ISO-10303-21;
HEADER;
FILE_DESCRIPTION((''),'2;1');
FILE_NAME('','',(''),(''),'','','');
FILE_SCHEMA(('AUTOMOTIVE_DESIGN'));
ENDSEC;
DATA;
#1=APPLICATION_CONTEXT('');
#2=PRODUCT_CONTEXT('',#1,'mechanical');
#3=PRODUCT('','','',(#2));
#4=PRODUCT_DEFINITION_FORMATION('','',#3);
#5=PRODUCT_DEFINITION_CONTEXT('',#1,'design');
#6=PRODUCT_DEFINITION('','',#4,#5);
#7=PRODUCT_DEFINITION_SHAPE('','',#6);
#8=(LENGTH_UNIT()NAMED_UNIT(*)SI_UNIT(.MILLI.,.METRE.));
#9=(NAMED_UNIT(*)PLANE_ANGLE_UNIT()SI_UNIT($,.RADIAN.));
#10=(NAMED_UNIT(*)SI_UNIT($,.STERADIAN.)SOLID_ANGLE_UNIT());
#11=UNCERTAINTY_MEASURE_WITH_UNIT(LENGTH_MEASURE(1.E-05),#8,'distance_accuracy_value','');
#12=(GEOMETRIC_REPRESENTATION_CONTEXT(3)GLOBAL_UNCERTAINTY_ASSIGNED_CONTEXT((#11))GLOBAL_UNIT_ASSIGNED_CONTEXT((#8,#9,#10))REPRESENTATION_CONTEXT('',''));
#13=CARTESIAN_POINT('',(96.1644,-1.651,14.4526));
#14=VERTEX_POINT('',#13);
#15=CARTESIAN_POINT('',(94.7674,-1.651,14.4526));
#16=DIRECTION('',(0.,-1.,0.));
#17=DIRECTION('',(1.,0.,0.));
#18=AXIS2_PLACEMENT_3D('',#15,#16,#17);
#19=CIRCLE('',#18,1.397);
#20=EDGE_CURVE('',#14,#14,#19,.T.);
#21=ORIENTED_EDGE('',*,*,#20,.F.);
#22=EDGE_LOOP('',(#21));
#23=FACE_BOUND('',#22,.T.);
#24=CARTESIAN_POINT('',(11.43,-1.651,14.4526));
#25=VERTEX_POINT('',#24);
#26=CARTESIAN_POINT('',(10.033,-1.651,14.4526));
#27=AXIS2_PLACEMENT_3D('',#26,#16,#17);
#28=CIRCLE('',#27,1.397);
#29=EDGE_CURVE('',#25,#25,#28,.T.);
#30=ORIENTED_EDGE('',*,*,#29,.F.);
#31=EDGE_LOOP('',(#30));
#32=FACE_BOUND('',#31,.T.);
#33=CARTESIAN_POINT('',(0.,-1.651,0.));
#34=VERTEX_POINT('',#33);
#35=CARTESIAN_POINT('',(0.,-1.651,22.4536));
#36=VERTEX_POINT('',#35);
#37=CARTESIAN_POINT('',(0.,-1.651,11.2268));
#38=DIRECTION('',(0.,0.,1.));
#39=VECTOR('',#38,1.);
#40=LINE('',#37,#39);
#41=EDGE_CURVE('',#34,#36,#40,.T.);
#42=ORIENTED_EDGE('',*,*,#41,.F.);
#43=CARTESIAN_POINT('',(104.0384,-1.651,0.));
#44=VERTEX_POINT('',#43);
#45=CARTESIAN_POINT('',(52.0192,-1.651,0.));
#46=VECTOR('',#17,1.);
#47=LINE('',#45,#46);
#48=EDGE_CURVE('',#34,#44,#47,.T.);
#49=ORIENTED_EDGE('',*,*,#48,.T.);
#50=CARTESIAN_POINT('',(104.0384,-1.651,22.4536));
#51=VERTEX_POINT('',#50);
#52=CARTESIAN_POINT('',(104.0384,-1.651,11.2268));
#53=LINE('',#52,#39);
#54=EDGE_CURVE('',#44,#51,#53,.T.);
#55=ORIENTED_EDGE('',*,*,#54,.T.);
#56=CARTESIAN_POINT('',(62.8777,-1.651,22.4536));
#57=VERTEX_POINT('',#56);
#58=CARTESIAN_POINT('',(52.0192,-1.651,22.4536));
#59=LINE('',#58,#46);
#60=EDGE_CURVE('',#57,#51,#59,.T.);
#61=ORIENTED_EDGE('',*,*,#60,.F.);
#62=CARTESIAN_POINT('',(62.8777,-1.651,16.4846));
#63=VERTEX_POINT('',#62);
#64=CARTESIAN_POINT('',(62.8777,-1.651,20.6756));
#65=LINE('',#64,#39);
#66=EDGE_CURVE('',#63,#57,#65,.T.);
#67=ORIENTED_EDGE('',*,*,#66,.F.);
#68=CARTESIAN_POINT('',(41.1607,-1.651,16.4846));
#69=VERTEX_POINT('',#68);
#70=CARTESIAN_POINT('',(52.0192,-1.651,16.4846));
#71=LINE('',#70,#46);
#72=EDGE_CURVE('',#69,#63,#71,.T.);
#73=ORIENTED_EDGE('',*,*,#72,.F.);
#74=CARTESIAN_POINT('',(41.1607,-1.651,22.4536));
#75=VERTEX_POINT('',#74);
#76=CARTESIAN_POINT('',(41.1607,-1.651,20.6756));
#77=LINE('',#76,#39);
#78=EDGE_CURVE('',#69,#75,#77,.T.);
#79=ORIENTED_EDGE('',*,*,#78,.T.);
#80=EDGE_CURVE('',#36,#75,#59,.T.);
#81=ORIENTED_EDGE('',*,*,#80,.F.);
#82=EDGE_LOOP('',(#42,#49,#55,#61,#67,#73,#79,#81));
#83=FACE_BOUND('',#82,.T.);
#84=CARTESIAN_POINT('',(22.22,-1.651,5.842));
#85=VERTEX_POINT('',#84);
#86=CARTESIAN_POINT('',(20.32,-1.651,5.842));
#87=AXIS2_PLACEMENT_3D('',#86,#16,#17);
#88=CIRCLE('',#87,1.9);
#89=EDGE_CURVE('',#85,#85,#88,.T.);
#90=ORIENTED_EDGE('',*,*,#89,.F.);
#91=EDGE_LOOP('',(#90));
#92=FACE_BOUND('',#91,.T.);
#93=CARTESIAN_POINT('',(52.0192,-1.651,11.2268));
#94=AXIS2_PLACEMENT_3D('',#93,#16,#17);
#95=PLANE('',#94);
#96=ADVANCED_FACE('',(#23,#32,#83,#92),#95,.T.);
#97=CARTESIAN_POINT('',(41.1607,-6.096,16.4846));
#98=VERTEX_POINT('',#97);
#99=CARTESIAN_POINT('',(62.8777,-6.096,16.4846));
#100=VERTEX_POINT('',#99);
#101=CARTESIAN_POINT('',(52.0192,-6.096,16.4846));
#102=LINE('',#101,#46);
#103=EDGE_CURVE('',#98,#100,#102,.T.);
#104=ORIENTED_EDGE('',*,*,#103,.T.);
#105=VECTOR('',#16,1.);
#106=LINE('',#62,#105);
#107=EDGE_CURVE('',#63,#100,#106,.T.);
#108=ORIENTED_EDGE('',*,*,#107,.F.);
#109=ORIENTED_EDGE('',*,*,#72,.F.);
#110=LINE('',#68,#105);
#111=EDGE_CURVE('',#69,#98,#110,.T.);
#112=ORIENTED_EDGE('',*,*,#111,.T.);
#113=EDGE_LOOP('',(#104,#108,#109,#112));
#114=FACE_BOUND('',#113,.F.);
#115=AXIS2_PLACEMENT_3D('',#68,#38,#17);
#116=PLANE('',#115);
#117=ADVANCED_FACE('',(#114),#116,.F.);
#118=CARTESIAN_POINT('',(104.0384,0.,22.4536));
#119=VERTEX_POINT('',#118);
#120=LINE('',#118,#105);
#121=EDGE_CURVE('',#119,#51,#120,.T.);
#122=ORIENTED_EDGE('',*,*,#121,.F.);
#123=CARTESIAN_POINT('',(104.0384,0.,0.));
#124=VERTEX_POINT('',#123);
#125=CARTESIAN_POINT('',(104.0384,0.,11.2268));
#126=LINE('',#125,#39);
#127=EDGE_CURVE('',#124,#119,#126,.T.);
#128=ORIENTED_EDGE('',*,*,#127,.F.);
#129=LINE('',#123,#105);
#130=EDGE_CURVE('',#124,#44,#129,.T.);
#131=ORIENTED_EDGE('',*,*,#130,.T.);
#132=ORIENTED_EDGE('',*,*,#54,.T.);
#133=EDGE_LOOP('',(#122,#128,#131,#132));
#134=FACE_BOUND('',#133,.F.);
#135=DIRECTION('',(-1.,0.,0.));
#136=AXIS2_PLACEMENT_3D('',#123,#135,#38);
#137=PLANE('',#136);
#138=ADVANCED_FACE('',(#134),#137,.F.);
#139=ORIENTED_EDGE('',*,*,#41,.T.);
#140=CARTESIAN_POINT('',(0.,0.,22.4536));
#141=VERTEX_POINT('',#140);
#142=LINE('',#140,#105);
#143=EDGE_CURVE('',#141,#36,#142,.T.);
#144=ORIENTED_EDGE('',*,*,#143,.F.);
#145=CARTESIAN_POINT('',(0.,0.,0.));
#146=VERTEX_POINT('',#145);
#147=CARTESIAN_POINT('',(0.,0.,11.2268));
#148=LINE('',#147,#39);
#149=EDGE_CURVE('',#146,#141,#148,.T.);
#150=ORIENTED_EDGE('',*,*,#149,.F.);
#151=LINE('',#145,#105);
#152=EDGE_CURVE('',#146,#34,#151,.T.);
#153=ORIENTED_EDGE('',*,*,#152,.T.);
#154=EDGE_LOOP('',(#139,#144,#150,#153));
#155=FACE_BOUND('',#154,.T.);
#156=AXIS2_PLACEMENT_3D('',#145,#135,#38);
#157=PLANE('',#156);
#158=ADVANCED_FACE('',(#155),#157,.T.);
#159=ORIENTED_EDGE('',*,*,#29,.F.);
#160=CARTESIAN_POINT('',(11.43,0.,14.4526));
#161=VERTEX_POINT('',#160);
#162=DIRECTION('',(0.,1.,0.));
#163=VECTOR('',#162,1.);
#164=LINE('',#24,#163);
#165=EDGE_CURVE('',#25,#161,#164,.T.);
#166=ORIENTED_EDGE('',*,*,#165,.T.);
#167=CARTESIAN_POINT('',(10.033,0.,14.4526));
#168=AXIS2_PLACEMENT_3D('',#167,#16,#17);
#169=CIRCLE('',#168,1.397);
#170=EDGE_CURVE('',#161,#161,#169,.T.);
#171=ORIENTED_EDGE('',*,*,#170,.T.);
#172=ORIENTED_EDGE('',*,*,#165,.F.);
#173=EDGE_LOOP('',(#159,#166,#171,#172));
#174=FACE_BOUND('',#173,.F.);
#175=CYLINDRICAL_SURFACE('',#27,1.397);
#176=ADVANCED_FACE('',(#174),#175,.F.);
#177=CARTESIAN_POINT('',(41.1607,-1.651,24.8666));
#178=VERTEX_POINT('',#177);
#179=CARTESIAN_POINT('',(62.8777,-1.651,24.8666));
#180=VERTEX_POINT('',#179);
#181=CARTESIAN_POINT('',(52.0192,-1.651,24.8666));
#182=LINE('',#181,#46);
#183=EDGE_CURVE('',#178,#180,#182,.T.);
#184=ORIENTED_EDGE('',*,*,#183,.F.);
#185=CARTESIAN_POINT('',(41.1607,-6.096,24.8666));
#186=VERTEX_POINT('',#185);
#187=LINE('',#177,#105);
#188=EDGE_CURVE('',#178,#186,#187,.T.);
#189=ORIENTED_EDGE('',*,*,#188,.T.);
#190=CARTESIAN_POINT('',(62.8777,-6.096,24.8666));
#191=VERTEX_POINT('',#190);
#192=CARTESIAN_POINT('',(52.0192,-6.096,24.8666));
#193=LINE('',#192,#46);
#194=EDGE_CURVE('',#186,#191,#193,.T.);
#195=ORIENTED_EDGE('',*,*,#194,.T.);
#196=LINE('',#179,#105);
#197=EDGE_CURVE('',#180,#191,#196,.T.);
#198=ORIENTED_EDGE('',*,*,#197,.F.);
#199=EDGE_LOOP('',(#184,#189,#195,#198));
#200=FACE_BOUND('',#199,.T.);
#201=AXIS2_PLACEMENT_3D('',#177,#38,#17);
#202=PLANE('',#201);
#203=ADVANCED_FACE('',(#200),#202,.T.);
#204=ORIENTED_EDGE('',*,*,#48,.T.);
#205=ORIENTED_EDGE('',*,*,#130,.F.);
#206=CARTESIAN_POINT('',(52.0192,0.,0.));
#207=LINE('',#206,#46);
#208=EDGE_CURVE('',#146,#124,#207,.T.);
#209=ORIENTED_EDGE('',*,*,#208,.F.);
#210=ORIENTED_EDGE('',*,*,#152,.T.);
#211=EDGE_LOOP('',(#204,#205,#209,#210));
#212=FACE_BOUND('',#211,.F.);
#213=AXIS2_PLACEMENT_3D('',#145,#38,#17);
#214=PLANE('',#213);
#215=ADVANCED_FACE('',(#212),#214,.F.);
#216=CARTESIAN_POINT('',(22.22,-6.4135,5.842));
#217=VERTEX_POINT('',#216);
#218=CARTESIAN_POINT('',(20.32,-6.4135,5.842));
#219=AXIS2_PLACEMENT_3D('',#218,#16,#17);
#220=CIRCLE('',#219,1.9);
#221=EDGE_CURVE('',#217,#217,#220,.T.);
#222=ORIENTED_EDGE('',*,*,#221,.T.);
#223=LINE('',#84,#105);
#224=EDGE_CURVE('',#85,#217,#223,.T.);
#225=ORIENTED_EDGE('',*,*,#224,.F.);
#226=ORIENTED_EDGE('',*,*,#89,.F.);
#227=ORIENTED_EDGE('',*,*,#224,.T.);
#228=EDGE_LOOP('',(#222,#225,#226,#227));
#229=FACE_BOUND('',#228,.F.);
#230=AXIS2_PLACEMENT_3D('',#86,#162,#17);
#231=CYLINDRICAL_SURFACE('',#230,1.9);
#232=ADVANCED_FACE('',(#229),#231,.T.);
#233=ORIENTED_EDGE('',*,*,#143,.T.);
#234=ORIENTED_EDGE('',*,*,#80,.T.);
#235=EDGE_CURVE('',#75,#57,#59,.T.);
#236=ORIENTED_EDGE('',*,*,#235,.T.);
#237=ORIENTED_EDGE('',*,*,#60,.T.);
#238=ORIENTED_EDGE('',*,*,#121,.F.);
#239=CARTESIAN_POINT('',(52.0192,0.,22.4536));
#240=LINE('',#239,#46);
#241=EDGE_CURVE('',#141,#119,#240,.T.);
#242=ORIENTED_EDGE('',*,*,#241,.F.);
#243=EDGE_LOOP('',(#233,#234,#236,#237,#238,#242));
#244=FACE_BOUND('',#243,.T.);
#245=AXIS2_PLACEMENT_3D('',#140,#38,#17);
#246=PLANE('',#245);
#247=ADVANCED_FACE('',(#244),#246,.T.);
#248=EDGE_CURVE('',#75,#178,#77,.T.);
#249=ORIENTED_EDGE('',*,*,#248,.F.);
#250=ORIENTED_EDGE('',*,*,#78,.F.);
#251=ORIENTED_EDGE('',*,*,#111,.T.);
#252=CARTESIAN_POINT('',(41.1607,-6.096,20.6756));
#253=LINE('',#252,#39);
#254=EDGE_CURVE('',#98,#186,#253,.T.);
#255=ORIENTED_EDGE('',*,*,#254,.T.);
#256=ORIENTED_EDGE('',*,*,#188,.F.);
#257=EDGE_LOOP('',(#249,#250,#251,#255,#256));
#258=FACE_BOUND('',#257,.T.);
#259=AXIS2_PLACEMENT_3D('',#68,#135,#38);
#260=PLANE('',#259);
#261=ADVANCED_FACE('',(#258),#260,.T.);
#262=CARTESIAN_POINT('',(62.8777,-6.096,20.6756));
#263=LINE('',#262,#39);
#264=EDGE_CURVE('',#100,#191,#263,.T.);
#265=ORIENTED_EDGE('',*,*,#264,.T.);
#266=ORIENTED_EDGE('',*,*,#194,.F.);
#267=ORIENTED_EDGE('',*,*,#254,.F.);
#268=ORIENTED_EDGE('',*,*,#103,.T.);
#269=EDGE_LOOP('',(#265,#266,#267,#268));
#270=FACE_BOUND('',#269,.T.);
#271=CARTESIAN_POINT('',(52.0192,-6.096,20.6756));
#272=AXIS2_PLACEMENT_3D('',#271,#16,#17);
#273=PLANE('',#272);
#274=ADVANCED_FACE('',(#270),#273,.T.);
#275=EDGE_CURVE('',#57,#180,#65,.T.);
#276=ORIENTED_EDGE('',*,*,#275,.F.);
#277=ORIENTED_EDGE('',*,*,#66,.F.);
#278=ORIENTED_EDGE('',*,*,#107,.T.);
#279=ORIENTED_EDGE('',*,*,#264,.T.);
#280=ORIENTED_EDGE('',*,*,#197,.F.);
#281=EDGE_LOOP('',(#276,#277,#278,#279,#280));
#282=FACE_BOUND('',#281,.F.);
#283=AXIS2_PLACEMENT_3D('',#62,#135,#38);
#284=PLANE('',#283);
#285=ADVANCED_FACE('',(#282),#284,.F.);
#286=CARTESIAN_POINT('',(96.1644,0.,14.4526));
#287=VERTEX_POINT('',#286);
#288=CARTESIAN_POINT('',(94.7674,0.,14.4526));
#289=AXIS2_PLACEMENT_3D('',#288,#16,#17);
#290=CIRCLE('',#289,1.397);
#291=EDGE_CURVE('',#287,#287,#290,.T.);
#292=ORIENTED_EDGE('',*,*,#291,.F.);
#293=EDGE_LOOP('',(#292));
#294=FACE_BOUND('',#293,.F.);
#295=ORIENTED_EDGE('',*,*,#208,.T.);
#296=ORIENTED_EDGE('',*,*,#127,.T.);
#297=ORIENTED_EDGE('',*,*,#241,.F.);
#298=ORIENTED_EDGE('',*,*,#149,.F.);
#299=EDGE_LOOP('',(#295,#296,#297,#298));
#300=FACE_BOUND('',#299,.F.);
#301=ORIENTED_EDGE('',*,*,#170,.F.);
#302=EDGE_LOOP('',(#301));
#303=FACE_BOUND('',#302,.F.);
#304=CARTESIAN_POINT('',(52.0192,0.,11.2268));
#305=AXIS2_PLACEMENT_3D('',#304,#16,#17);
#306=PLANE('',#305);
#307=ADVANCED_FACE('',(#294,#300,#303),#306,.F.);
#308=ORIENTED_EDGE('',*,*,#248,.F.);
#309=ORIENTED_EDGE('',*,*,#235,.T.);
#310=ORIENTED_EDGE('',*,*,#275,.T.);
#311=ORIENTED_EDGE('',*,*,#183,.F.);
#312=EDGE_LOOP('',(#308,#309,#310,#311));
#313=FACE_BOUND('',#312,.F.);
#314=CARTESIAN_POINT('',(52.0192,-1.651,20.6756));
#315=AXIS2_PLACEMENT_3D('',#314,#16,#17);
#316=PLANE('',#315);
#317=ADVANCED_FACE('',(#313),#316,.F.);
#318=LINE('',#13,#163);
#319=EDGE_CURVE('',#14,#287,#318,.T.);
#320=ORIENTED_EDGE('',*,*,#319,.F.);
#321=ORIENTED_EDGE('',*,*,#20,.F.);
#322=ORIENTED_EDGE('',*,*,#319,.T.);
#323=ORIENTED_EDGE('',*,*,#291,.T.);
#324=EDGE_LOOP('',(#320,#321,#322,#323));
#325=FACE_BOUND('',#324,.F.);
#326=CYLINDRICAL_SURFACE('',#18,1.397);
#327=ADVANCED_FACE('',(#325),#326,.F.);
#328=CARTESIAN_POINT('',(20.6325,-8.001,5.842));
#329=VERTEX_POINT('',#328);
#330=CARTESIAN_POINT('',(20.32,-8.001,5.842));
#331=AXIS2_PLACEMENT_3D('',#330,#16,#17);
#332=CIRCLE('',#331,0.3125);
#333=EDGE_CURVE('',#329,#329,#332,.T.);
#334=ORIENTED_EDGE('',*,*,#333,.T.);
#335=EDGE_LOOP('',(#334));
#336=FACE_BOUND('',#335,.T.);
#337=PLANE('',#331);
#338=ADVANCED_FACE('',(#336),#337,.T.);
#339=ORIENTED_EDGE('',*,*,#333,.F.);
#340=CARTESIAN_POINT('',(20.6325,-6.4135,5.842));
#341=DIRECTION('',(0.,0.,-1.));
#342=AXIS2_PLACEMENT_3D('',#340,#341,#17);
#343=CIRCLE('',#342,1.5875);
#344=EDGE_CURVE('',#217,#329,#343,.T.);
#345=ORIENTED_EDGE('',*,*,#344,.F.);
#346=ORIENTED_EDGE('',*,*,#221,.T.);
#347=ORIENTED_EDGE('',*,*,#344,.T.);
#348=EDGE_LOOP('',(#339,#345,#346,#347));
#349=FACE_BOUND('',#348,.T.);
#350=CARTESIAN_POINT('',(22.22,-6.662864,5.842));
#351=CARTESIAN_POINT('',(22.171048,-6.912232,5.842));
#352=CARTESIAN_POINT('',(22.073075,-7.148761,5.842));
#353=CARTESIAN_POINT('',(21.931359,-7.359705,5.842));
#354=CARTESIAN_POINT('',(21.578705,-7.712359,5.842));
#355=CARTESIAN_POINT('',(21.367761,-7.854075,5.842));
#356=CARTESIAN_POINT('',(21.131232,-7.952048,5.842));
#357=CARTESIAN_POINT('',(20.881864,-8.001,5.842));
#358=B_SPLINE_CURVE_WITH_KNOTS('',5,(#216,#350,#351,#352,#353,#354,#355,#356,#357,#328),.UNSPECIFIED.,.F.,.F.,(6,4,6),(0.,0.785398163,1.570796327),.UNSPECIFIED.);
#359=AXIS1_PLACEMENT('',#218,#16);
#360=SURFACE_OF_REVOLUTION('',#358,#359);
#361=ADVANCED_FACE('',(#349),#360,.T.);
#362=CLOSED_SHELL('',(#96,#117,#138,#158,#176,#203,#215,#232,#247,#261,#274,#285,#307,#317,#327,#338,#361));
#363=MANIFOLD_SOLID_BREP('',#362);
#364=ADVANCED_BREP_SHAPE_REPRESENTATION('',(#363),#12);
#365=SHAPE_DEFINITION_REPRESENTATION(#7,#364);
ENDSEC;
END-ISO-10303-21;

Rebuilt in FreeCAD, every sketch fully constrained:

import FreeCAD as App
import Part
import Sketcher

V = App.Vector
Q = App.Units.Quantity


def edges_at(feature, points):
    """Names of the edges that pass closest to the given points."""
    edges = feature.Shape.Edges
    near = lambda p: min(range(len(edges)), key=lambda i: edges[i].distToShape(Part.Vertex(*p))[0])
    return sorted({f"Edge{near(p) + 1}" for p in points})


def add_polygon(sketch, points):
    """Adds a closed chain of lines whose ends are joined by coincident constraints."""
    first, n = sketch.GeometryCount, len(points)
    for a, b in zip(points, points[1:] + points[:1]):
        sketch.addGeometry(Part.LineSegment(App.Vector(*a, 0), App.Vector(*b, 0)), False)
    for i in range(n):
        sketch.addConstraint(Sketcher.Constraint("Coincident", first + i, 2, first + (i + 1) % n, 1))

doc = App.newDocument("Part")
body = doc.addObject("PartDesign::Body", "Body")

# Sketch on XZ plane
sketch1 = doc.addObject("Sketcher::SketchObject", "Sketch")
body.addObject(sketch1)
sketch1.AttachmentSupport = (doc.XZ_Plane, [""])
sketch1.MapMode = "FlatFace"
add_polygon(sketch1, [(0, 22), (0, 0), (104, 0), (104, 22)])  # lines 0-3
sketch1.addConstraint([
    Sketcher.Constraint("Vertical", 0),
    Sketcher.Constraint("Horizontal", 1),
    Sketcher.Constraint("Vertical", 2),
    Sketcher.Constraint("Horizontal", 3),
    Sketcher.Constraint("Coincident", 0, 2, -1, 1),
    Sketcher.Constraint("DistanceX", 1, 1, 1, 2, Q("4.096 in")),
    Sketcher.Constraint("DistanceY", 0, 2, 0, 1, Q("0.884 in")),
])
pad1 = doc.addObject("PartDesign::Pad", "Pad")
body.addObject(pad1)
pad1.Profile = sketch1
pad1.Length = Q("0.065 in")

# Sketch on XZ plane
sketch2 = doc.addObject("Sketcher::SketchObject", "Sketch001")
body.addObject(sketch2)
sketch2.AttachmentSupport = (doc.XZ_Plane, [""])
sketch2.MapMode = "FlatFace"
sketch2.AttachmentOffset = App.Placement(V(0, 0, 0.065 * 25.4), App.Rotation())
sketch2.addGeometry(Part.Circle(V(20.3, 5.8, 0), V(0, 0, 1), 1.9), False)
sketch2.addConstraint([
    Sketcher.Constraint("DistanceX", -1, 1, 0, 3, Q("0.8 in")),
    Sketcher.Constraint("Diameter", 0, Q("3.8 mm")),
    Sketcher.Constraint("DistanceY", -1, 1, 0, 3, Q("0.23 in")),
])
pad2 = doc.addObject("PartDesign::Pad", "Pad001")
body.addObject(pad2)
pad2.Profile = sketch2
pad2.Length = Q("0.25 in")
doc.recompute()

fillet = doc.addObject("PartDesign::Fillet", "Fillet")
body.addObject(fillet)
fillet.Base = (pad2, edges_at(pad2, [(18.42, -8.001, 5.842)]))
fillet.Radius = Q("0.0625 in")

# Sketch on XZ plane
sketch3 = doc.addObject("Sketcher::SketchObject", "Sketch002")
body.addObject(sketch3)
sketch3.AttachmentSupport = (doc.XZ_Plane, [""])
sketch3.MapMode = "FlatFace"
sketch3.AttachmentOffset = App.Placement(V(0, 0, 0.065 * 25.4), App.Rotation())
sketch3.addGeometry([
    Part.Circle(V(10, 14.5, 0), V(0, 0, 1), 1.4),
    Part.Circle(V(94.8, 14.5, 0), V(0, 0, 1), 1.4),
], False)
sketch3.addConstraint([
    Sketcher.Constraint("Equal", 0, 1),
    Sketcher.Constraint("Horizontal", 0, 3, 1, 3),
    Sketcher.Constraint("Diameter", 0, Q("0.11 in")),
    Sketcher.Constraint("DistanceX", -1, 1, 0, 3, Q("0.395 in")),
    Sketcher.Constraint("DistanceY", -1, 1, 0, 3, Q("0.569 in")),
    Sketcher.Constraint("DistanceX", -1, 1, 1, 3, Q("3.731 in")),
])
pocket1 = doc.addObject("PartDesign::Pocket", "Pocket")
body.addObject(pocket1)
pocket1.Profile = sketch3
pocket1.Type = "ThroughAll"

# Sketch on XZ plane
sketch4 = doc.addObject("Sketcher::SketchObject", "Sketch003")
body.addObject(sketch4)
sketch4.AttachmentSupport = (doc.XZ_Plane, [""])
sketch4.MapMode = "FlatFace"
sketch4.AttachmentOffset = App.Placement(V(0, 0, 0.065 * 25.4), App.Rotation())
add_polygon(sketch4, [(41, 25), (41, 16), (63, 16), (63, 25)])  # lines 0-3
sketch4.addConstraint([
    Sketcher.Constraint("Vertical", 0),
    Sketcher.Constraint("Horizontal", 1),
    Sketcher.Constraint("Vertical", 2),
    Sketcher.Constraint("Horizontal", 3),
    Sketcher.Constraint("DistanceY", 0, 2, 0, 1, Q("0.33 in")),
    Sketcher.Constraint("DistanceX", 1, 1, 1, 2, Q("0.855 in")),
    Sketcher.Constraint("DistanceY", -1, 1, 0, 2, Q("0.649 in")),
    Sketcher.Constraint("DistanceX", -1, 1, 0, 2, Q("1.6205 in")),
])
pad3 = doc.addObject("PartDesign::Pad", "Pad002")
body.addObject(pad3)
pad3.Profile = sketch4
pad3.Length = Q("0.175 in")

doc.recompute()
